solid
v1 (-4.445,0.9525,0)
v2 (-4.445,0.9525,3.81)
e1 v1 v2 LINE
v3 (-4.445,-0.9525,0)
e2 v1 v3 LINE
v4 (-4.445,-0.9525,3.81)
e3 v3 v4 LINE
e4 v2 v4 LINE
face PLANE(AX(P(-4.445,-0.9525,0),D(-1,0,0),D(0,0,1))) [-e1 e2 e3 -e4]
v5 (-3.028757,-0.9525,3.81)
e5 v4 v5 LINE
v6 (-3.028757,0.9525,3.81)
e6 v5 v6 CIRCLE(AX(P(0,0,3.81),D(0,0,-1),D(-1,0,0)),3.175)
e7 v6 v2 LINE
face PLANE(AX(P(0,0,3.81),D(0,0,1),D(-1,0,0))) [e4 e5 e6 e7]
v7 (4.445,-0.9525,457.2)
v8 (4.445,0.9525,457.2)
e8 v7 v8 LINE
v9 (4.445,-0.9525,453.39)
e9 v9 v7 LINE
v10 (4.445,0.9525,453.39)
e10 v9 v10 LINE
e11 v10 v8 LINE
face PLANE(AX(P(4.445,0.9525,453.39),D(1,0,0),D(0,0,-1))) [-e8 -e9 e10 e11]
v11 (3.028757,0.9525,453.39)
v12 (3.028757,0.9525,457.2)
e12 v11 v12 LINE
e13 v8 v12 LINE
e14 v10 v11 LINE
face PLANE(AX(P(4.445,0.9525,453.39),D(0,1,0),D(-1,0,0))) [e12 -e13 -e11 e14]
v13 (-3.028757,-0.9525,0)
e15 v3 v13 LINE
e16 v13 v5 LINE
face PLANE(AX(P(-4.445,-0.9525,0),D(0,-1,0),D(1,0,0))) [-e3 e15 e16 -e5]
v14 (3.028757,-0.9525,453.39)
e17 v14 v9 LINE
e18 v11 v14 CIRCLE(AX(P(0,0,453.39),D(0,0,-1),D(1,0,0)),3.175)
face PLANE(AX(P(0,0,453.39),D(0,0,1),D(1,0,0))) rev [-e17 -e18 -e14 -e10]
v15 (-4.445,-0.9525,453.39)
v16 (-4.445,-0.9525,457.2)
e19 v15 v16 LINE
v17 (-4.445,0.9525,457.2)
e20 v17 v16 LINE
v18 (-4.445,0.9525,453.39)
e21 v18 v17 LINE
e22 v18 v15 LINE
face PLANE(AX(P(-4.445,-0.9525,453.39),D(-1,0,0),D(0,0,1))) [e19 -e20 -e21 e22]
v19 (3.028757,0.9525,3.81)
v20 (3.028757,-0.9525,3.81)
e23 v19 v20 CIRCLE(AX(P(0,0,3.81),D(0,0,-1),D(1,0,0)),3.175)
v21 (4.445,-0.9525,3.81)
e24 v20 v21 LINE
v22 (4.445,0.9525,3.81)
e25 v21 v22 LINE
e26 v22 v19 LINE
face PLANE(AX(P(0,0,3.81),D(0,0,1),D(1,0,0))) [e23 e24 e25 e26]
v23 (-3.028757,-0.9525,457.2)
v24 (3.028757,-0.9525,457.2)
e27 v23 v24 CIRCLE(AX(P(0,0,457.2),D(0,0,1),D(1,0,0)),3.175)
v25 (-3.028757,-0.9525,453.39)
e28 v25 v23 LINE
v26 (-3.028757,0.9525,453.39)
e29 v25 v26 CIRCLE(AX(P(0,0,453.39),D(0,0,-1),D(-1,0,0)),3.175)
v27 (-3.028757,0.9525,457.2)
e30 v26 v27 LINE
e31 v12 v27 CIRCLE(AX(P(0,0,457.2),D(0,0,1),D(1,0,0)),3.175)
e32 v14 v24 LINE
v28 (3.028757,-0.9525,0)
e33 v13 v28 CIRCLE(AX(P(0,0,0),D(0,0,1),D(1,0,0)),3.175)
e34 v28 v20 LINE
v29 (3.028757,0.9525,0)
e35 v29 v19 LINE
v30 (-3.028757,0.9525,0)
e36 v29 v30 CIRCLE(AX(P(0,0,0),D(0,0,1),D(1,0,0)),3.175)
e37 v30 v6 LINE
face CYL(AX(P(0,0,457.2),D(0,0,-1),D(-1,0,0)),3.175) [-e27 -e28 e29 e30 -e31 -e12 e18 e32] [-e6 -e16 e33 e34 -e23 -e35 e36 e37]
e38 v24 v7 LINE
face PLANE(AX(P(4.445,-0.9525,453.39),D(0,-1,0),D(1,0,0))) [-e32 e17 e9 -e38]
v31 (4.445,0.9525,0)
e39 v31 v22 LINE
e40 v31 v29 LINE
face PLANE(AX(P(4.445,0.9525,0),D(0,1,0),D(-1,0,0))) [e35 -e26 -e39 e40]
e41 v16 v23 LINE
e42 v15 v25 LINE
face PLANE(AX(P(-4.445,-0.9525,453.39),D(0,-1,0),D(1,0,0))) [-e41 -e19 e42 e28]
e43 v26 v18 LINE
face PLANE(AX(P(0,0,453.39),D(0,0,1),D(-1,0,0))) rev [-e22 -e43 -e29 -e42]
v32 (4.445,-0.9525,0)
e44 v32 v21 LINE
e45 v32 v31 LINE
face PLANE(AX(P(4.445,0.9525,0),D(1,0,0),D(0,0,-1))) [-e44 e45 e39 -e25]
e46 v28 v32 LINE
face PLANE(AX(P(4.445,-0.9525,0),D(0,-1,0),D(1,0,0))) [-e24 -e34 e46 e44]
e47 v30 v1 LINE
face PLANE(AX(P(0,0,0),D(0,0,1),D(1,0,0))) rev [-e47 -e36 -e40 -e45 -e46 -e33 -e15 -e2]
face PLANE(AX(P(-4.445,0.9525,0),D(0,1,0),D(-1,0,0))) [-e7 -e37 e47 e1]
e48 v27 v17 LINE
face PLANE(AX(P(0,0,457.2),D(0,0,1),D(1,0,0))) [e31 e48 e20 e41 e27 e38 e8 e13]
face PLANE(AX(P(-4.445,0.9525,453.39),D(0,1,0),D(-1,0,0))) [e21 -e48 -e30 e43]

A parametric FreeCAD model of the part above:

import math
import FreeCAD as App
import Part
import Sketcher
from FreeCAD import Vector
Q = App.Units.Quantity

doc = App.newDocument("Part")
body = doc.addObject("PartDesign::Body", "Body")

# Sketch on XY plane
sketch1 = body.newObject("Sketcher::SketchObject", "Sketch")
sketch1.AttachmentSupport = (doc.getObject("XY_Plane"), [""])
sketch1.MapMode = "FlatFace"
sketch1.addGeometry(Part.Circle(Vector(0, 0, 0), Vector(0, 0, 1), 3.2), False)
sketch1.addConstraint([
    Sketcher.Constraint("Coincident", 0, 3, -1, 1),
    Sketcher.Constraint("Diameter", 0, Q("0.25 in")),
])
pad1 = body.newObject("PartDesign::Pad", "Pad")
pad1.Profile = sketch1
pad1.Length = Q("18 in")

# Sketch on XY plane
sketch2 = body.newObject("Sketcher::SketchObject", "Sketch001")
sketch2.AttachmentSupport = (doc.getObject("XY_Plane"), [""])
sketch2.MapMode = "FlatFace"
sketch2.AttachmentOffset = App.Placement(Vector(0, 0, 17.85 * 25.4), App.Rotation())
sketch2.addGeometry([
    Part.LineSegment(Vector(4.4, -1, 0), Vector(4.4, 1, 0)),
    Part.LineSegment(Vector(4.4, 1, 0), Vector(3, 1, 0)),
    Part.ArcOfCircle(Part.Circle(Vector(0, 0, 0), Vector(0, 0, 1), 3.2), math.radians(-17), math.radians(17)),
    Part.LineSegment(Vector(3, -1, 0), Vector(4.4, -1, 0)),
], False)
sketch2.addConstraint([
    Sketcher.Constraint("Coincident", 0, 2, 1, 1),
    Sketcher.Constraint("Coincident", 1, 2, 2, 2),
    Sketcher.Constraint("Coincident", 2, 1, 3, 1),
    Sketcher.Constraint("Coincident", 3, 2, 0, 1),
    Sketcher.Constraint("Vertical", 0),
    Sketcher.Constraint("Horizontal", 1),
    Sketcher.Constraint("Horizontal", 3),
    Sketcher.Constraint("Coincident", 2, 3, -1, 1),
    Sketcher.Constraint("Vertical", 1, 2, 2, 1),
    Sketcher.Constraint("Radius", 2, Q("0.125 in")),
    Sketcher.Constraint("DistanceY", 0, 1, 0, 2, Q("0.075 in")),
    Sketcher.Constraint("DistanceX", -1, 1, 0, 2, Q("0.175 in")),
])
pad2 = body.newObject("PartDesign::Pad", "Pad001")
pad2.Profile = sketch2
pad2.Length = Q("0.15 in")
doc.recompute()

polarpattern = body.newObject("PartDesign::PolarPattern", "PolarPattern")
polarpattern.Originals = [pad2]
polarpattern.Axis = (doc.getObject("Z_Axis"), [""])
polarpattern.Angle = 360
polarpattern.Occurrences = 2
body.Tip = polarpattern
doc.recompute()

linearpattern = body.newObject("PartDesign::LinearPattern", "LinearPattern")
linearpattern.Originals = [pad2]
linearpattern.Direction = (doc.getObject("Z_Axis"), [""])
linearpattern.Mode = "offset"
linearpattern.Offset = Q("17.85 in")
linearpattern.Occurrences = 2
linearpattern.Reversed = True
body.Tip = linearpattern

# Sketch on XY plane
sketch3 = body.newObject("Sketcher::SketchObject", "Sketch002")
sketch3.AttachmentSupport = (doc.getObject("XY_Plane"), [""])
sketch3.MapMode = "FlatFace"
sketch3.addGeometry([
    Part.LineSegment(Vector(-4.4, 1, 0), Vector(-4.4, -1, 0)),
    Part.LineSegment(Vector(-4.4, -1, 0), Vector(-3, -1, 0)),
    Part.ArcOfCircle(Part.Circle(Vector(0, 0, 0), Vector(0, 0, 1), 3.2), math.radians(163), math.radians(197)),
    Part.LineSegment(Vector(-3, 1, 0), Vector(-4.4, 1, 0)),
], False)
sketch3.addConstraint([
    Sketcher.Constraint("Coincident", 0, 2, 1, 1),
    Sketcher.Constraint("Coincident", 1, 2, 2, 2),
    Sketcher.Constraint("Coincident", 2, 1, 3, 1),
    Sketcher.Constraint("Coincident", 3, 2, 0, 1),
    Sketcher.Constraint("Vertical", 0),
    Sketcher.Constraint("Horizontal", 1),
    Sketcher.Constraint("Horizontal", 3),
    Sketcher.Constraint("Coincident", 2, 3, -1, 1),
    Sketcher.Constraint("Vertical", 1, 2, 2, 1),
    Sketcher.Constraint("Radius", 2, Q("0.125 in")),
    Sketcher.Constraint("DistanceY", 0, 2, 0, 1, Q("0.075 in")),
    Sketcher.Constraint("DistanceX", 0, 2, -1, 1, Q("0.175 in")),
])
pad3 = body.newObject("PartDesign::Pad", "Pad002")
pad3.Profile = sketch3
pad3.Length = Q("0.15 in")

doc.recompute()
